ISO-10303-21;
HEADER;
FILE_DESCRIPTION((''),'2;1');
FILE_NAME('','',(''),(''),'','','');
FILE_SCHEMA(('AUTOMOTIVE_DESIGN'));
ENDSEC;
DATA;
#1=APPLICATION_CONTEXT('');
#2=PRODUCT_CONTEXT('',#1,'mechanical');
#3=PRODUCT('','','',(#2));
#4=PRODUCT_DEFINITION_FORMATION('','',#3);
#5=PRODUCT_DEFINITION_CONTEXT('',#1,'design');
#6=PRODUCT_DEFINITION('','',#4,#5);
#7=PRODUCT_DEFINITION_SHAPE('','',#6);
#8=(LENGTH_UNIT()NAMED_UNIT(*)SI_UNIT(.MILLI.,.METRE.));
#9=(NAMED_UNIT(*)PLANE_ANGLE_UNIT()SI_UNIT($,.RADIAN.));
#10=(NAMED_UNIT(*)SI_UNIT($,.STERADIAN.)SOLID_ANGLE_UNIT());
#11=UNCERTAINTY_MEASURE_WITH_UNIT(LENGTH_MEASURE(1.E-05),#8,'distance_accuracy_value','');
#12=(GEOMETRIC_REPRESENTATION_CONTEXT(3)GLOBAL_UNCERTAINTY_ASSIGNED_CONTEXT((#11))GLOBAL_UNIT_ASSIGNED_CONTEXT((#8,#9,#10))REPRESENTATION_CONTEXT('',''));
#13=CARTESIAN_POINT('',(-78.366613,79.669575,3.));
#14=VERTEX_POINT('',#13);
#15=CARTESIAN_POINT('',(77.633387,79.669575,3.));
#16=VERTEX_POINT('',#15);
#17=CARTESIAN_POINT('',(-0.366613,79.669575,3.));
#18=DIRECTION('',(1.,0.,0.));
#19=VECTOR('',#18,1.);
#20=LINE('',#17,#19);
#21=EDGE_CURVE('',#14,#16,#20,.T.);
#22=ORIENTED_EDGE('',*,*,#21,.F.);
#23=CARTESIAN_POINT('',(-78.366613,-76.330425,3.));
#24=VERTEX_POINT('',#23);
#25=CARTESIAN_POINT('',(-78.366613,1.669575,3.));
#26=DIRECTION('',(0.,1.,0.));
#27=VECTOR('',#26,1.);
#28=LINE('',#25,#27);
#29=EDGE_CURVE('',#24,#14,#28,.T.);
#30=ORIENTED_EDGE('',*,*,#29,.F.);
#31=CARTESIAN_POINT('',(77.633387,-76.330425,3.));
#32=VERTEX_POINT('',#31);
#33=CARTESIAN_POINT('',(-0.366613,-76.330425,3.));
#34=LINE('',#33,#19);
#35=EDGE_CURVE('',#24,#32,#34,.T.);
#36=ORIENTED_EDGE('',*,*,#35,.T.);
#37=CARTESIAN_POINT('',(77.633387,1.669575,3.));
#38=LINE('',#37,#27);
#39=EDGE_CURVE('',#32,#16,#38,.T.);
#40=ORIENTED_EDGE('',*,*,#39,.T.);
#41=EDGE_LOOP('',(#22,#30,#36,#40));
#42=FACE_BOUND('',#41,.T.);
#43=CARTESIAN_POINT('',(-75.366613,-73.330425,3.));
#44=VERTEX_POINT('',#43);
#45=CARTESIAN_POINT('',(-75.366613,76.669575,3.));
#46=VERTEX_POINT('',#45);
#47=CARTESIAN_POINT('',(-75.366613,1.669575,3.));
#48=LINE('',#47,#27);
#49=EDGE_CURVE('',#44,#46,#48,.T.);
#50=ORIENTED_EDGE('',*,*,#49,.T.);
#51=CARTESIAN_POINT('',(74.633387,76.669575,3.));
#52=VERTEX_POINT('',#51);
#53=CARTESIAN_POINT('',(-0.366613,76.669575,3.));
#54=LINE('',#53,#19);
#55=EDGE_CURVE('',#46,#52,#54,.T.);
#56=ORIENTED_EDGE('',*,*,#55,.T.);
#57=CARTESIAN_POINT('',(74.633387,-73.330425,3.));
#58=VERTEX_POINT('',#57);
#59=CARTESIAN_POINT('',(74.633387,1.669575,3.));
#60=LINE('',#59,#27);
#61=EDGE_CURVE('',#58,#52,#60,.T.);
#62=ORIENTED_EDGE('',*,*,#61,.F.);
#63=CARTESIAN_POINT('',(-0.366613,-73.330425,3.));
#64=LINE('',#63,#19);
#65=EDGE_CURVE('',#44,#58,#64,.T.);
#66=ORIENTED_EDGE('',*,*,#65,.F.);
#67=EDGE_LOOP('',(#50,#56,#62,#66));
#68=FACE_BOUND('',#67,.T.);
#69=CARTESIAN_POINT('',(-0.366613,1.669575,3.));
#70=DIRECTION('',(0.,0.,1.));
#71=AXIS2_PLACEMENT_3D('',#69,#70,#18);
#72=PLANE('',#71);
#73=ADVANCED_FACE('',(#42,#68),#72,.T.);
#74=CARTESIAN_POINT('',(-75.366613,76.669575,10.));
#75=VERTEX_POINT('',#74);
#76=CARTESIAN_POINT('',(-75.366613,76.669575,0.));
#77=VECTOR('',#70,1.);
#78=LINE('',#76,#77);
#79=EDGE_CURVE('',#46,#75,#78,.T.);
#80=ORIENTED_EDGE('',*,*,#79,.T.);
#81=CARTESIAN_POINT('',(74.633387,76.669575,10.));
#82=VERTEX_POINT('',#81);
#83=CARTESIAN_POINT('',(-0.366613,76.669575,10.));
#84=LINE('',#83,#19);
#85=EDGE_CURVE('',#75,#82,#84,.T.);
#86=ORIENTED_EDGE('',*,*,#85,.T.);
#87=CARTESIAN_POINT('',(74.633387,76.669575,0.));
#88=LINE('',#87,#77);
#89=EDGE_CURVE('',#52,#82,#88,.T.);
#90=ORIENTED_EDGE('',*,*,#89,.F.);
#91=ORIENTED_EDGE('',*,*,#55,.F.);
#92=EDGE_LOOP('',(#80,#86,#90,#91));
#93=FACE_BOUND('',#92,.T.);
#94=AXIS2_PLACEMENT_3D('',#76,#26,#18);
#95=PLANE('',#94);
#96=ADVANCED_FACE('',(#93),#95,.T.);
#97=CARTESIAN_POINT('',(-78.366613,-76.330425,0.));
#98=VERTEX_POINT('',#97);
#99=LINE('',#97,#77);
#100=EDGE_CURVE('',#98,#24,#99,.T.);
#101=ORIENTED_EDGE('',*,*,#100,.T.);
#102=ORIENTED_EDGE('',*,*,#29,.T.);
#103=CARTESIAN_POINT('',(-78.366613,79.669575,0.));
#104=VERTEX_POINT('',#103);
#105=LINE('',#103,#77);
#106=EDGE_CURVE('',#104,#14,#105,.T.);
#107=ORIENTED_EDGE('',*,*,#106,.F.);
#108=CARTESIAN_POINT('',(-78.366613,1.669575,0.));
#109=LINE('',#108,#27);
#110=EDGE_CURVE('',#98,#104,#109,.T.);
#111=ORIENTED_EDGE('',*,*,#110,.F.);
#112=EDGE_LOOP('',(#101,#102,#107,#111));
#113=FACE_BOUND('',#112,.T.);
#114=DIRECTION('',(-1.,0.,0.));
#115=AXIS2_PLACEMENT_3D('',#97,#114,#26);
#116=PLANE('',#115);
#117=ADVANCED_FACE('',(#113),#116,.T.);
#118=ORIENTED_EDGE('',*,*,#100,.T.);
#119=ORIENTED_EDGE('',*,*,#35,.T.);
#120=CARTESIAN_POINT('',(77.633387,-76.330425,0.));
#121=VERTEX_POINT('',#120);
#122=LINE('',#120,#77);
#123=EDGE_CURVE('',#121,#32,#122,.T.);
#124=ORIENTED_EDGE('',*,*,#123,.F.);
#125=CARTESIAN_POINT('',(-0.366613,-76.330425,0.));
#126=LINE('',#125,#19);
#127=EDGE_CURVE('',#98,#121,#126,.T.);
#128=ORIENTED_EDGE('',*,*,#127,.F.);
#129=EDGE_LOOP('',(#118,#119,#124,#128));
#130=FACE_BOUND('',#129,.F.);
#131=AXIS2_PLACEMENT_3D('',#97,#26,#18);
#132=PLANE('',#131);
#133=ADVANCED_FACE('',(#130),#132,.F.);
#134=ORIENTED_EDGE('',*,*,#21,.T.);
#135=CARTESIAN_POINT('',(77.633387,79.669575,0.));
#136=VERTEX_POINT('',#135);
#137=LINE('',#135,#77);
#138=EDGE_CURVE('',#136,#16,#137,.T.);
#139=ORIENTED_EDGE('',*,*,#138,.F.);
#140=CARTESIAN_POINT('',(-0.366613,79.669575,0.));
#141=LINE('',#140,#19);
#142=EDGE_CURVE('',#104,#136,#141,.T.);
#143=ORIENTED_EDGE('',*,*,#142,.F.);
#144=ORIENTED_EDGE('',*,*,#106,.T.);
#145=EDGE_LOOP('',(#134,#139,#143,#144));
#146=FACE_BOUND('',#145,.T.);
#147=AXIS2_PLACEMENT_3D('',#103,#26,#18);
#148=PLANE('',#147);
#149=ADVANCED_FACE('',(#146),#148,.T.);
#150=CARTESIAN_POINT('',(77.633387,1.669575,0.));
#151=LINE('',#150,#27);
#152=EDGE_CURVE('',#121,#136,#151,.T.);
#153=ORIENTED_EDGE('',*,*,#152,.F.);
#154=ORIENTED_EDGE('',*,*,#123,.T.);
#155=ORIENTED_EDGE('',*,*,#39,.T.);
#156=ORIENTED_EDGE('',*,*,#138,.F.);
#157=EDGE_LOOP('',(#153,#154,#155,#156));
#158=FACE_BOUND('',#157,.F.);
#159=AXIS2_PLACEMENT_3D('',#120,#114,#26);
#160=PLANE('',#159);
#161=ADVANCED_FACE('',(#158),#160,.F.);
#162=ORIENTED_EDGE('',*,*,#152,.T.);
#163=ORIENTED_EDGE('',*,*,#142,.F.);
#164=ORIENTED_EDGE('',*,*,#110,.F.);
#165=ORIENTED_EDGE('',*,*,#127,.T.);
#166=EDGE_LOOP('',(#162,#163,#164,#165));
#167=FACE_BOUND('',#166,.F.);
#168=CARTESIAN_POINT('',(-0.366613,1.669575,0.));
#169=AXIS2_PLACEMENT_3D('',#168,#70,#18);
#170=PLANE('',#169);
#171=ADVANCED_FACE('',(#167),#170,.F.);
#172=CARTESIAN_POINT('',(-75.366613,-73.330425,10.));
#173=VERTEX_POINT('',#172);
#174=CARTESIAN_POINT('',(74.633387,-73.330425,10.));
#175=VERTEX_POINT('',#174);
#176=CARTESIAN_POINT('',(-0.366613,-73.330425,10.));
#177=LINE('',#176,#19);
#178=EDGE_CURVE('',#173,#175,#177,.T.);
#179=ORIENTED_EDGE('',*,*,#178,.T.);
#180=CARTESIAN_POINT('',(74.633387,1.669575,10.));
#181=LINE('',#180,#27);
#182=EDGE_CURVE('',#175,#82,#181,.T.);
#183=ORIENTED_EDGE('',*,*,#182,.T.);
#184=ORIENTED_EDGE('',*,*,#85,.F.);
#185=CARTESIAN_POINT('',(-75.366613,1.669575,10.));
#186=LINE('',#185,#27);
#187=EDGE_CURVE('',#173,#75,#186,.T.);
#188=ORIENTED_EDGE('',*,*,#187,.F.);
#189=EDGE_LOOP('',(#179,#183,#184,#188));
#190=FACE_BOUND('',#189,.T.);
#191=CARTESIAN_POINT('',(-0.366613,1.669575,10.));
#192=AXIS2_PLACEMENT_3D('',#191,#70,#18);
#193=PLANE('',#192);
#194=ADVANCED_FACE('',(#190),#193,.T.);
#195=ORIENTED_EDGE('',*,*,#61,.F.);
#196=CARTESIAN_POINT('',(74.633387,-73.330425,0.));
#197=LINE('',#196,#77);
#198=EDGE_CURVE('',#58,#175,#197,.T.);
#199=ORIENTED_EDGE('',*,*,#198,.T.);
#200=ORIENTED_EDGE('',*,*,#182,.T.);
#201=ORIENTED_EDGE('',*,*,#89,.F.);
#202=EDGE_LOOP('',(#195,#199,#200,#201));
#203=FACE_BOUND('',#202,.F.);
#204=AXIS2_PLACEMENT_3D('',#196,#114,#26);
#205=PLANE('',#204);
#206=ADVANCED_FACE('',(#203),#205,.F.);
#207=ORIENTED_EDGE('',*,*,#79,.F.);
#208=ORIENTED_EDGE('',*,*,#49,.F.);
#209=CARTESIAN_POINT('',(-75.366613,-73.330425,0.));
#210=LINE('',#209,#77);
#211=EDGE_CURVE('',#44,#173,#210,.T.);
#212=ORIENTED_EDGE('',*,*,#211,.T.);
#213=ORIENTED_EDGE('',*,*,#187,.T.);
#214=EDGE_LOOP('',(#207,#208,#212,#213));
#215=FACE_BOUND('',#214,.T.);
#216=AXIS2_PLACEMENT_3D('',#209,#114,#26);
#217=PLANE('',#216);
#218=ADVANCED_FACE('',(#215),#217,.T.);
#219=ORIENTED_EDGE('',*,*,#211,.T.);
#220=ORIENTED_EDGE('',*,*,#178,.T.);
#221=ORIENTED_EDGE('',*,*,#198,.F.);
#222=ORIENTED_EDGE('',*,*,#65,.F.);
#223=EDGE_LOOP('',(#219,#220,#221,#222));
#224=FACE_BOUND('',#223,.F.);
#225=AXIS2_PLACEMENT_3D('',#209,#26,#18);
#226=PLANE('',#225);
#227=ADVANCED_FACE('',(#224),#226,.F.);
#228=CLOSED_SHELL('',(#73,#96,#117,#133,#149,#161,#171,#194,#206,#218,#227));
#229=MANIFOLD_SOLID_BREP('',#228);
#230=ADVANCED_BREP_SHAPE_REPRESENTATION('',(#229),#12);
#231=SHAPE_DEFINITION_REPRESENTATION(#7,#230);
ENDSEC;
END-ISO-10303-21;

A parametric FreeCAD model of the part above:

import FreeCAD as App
import Part
import Sketcher

doc = App.newDocument("Part")
body = doc.addObject("PartDesign::Body", "Body")

# Sketch on XY plane
sketch1 = doc.addObject("Sketcher::SketchObject", "Sketch")
body.addObject(sketch1)
sketch1.AttachmentSupport = (doc.XY_Plane, [""])
sketch1.MapMode = "FlatFace"
sketch1.addGeometry([
    Part.LineSegment(App.Vector(-75, 77, 0), App.Vector(-75, -73, 0)),
    Part.LineSegment(App.Vector(-75, -73, 0), App.Vector(75, -73, 0)),
    Part.LineSegment(App.Vector(75, -73, 0), App.Vector(75, 77, 0)),
    Part.LineSegment(App.Vector(75, 77, 0), App.Vector(-75, 77, 0)),
], False)
sketch1.addConstraint([
    Sketcher.Constraint("Coincident", 0, 2, 1, 1),
    Sketcher.Constraint("Coincident", 1, 2, 2, 1),
    Sketcher.Constraint("Coincident", 2, 2, 3, 1),
    Sketcher.Constraint("Coincident", 3, 2, 0, 1),
    Sketcher.Constraint("Vertical", 0),
    Sketcher.Constraint("Horizontal", 1),
    Sketcher.Constraint("Vertical", 2),
    Sketcher.Constraint("Horizontal", 3),
    Sketcher.Constraint("Equal", 3, 0),
    Sketcher.Constraint("DistanceX", 1, 1, 1, 2, 150.0),
    Sketcher.Constraint("DistanceX", 0, 2, -1, 1, 75.366613),
    Sketcher.Constraint("DistanceY", 0, 2, -1, 1, 73.330425),
])
pad1 = doc.addObject("PartDesign::Pad", "Pad")
body.addObject(pad1)
pad1.Profile = sketch1
pad1.Length = 10

# Sketch on XY plane
sketch2 = doc.addObject("Sketcher::SketchObject", "Sketch001")
body.addObject(sketch2)
sketch2.AttachmentSupport = (doc.XY_Plane, [""])
sketch2.MapMode = "FlatFace"
sketch2.addGeometry([
    Part.LineSegment(App.Vector(-78, 80, 0), App.Vector(-78, -76, 0)),  # 0
    Part.LineSegment(App.Vector(-78, -76, 0), App.Vector(78, -76, 0)),  # 1
    Part.LineSegment(App.Vector(78, -76, 0), App.Vector(78, 80, 0)),  # 2
    Part.LineSegment(App.Vector(78, 80, 0), App.Vector(-78, 80, 0)),  # 3
    Part.LineSegment(App.Vector(75, -73, 0), App.Vector(-75, -73, 0)),  # 4
    Part.LineSegment(App.Vector(-75, -73, 0), App.Vector(-75, 77, 0)),  # 5
    Part.LineSegment(App.Vector(-75, 77, 0), App.Vector(75, 77, 0)),  # 6
    Part.LineSegment(App.Vector(75, 77, 0), App.Vector(75, -73, 0)),  # 7
], False)
sketch2.addConstraint([
    Sketcher.Constraint("Coincident", 0, 2, 1, 1),
    Sketcher.Constraint("Coincident", 1, 2, 2, 1),
    Sketcher.Constraint("Coincident", 2, 2, 3, 1),
    Sketcher.Constraint("Coincident", 3, 2, 0, 1),
    Sketcher.Constraint("Coincident", 4, 2, 5, 1),
    Sketcher.Constraint("Coincident", 5, 2, 6, 1),
    Sketcher.Constraint("Coincident", 6, 2, 7, 1),
    Sketcher.Constraint("Coincident", 7, 2, 4, 1),
    Sketcher.Constraint("Vertical", 0),
    Sketcher.Constraint("Horizontal", 1),
    Sketcher.Constraint("Vertical", 2),
    Sketcher.Constraint("Horizontal", 3),
    Sketcher.Constraint("Horizontal", 4),
    Sketcher.Constraint("Vertical", 5),
    Sketcher.Constraint("Horizontal", 6),
    Sketcher.Constraint("Vertical", 7),
    Sketcher.Constraint("Equal", 3, 0),
    Sketcher.Constraint("Equal", 6, 5),
    Sketcher.Constraint("DistanceX", 1, 1, 1, 2, 156.0),
    Sketcher.Constraint("DistanceX", 4, 2, 4, 1, 150.0),
    Sketcher.Constraint("DistanceX", 0, 2, 4, 2, 3.0),
    Sketcher.Constraint("DistanceY", 0, 2, 4, 2, 3.0),
    Sketcher.Constraint("DistanceX", 0, 2, -1, 1, 78.366613),
    Sketcher.Constraint("DistanceY", 0, 2, -1, 1, 76.330425),
])
pad2 = doc.addObject("PartDesign::Pad", "Pad001")
body.addObject(pad2)
pad2.Profile = sketch2
pad2.Length = 3

doc.recompute()
